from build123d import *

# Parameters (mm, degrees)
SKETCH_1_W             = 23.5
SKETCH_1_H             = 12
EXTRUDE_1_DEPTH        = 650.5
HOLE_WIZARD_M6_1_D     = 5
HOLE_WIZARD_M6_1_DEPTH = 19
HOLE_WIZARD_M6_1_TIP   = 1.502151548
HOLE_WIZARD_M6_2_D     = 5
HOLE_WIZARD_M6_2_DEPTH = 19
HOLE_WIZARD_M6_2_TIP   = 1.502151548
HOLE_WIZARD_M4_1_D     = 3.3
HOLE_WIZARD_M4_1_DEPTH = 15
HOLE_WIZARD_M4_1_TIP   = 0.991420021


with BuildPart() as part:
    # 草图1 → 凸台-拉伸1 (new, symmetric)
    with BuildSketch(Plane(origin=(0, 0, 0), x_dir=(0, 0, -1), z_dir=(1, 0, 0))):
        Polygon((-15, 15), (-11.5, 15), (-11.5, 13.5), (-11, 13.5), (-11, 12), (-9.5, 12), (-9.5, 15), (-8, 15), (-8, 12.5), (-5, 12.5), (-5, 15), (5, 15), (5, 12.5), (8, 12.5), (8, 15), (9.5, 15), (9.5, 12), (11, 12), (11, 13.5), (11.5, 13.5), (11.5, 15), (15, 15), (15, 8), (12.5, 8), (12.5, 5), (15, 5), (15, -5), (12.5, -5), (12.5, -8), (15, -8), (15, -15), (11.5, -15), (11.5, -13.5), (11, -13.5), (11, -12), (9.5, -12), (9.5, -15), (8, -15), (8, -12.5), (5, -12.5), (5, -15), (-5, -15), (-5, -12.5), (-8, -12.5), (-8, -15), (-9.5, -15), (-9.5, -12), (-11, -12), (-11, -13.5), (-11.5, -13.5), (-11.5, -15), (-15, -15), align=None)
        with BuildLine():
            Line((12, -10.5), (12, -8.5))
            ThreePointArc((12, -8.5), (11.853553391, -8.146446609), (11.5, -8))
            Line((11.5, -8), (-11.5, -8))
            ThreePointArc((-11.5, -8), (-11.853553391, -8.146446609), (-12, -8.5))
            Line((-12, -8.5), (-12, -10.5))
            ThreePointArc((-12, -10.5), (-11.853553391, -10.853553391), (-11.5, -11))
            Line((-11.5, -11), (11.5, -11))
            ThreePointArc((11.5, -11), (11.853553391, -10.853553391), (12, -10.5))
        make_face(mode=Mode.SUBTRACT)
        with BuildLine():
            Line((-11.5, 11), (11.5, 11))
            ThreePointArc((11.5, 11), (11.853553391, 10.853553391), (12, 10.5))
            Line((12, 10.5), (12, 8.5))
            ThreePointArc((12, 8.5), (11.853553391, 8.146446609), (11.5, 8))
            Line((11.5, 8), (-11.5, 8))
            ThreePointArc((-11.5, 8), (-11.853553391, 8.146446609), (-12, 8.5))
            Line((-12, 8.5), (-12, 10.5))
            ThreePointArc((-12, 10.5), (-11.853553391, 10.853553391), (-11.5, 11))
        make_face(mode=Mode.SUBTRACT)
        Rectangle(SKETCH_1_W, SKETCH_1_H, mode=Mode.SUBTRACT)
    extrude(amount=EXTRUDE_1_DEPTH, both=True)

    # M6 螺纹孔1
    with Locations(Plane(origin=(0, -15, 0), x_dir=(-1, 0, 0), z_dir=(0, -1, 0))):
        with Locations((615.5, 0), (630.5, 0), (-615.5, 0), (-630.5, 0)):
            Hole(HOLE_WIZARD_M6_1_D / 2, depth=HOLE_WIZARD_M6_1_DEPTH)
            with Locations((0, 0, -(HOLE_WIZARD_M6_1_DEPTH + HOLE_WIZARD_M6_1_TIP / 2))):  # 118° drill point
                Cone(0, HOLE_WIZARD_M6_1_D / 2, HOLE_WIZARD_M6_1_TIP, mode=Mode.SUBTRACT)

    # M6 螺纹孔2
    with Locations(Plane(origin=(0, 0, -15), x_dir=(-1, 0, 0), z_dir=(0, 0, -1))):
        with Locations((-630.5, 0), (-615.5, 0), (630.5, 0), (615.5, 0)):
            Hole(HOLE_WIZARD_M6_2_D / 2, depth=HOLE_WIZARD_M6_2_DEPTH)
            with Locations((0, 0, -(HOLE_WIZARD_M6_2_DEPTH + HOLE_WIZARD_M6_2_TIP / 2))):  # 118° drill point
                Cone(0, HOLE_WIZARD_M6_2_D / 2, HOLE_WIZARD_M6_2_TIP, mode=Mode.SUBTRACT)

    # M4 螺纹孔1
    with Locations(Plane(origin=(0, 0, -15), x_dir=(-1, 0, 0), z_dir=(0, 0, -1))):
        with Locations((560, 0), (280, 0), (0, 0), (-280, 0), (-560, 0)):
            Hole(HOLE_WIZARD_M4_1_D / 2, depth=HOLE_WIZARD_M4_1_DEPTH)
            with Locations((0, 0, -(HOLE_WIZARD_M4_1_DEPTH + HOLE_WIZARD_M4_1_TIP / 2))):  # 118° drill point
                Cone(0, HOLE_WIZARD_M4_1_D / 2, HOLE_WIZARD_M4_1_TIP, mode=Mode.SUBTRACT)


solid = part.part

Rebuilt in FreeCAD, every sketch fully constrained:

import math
import FreeCAD as App
import Part
import Sketcher

V = App.Vector
Q = App.Units.Quantity

doc = App.newDocument("Part")
body = doc.addObject("PartDesign::Body", "Body")

# Sketch on YZ plane
sketch1 = body.newObject("Sketcher::SketchObject", "Sketch")
sketch1.AttachmentSupport = (doc.getObject("YZ_Plane"), [""])
sketch1.MapMode = "FlatFace"
sketch1.addGeometry(Part.LineSegment(V(15, 11.5, 0), V(15, 15, 0)), False)
sketch1.addGeometry(Part.LineSegment(V(15, 15, 0), V(-15, 15, 0)), False)
sketch1.addGeometry(Part.LineSegment(V(-15, 15, 0), V(-15, 11.5, 0)), False)
sketch1.addGeometry(Part.LineSegment(V(-15, 11.5, 0), V(-13.5, 11.5, 0)), False)
sketch1.addGeometry(Part.LineSegment(V(-13.5, 11.5, 0), V(-13.5, 11, 0)), False)
sketch1.addGeometry(Part.LineSegment(V(-13.5, 11, 0), V(-12, 11, 0)), False)
sketch1.addGeometry(Part.LineSegment(V(-12, 11, 0), V(-12, 9.5, 0)), False)
sketch1.addGeometry(Part.LineSegment(V(-12, 9.5, 0), V(-15, 9.5, 0)), False)
sketch1.addGeometry(Part.LineSegment(V(-15, 9.5, 0), V(-15, 8, 0)), False)
sketch1.addGeometry(Part.LineSegment(V(-15, 8, 0), V(-12.5, 8, 0)), False)
sketch1.addGeometry(Part.LineSegment(V(-12.5, 8, 0), V(-12.5, 5, 0)), False)
sketch1.addGeometry(Part.LineSegment(V(-12.5, 5, 0), V(-15, 5, 0)), False)
sketch1.addGeometry(Part.LineSegment(V(-15, 5, 0), V(-15, -5, 0)), False)
sketch1.addGeometry(Part.LineSegment(V(-15, -5, 0), V(-12.5, -5, 0)), False)
sketch1.addGeometry(Part.LineSegment(V(-12.5, -5, 0), V(-12.5, -8, 0)), False)
sketch1.addGeometry(Part.LineSegment(V(-12.5, -8, 0), V(-15, -8, 0)), False)
sketch1.addGeometry(Part.LineSegment(V(-15, -8, 0), V(-15, -9.5, 0)), False)
sketch1.addGeometry(Part.LineSegment(V(-15, -9.5, 0), V(-12, -9.5, 0)), False)
sketch1.addGeometry(Part.LineSegment(V(-12, -9.5, 0), V(-12, -11, 0)), False)
sketch1.addGeometry(Part.LineSegment(V(-12, -11, 0), V(-13.5, -11, 0)), False)
sketch1.addGeometry(Part.LineSegment(V(-13.5, -11, 0), V(-13.5, -11.5, 0)), False)
sketch1.addGeometry(Part.LineSegment(V(-13.5, -11.5, 0), V(-15, -11.5, 0)), False)
sketch1.addGeometry(Part.LineSegment(V(-15, -11.5, 0), V(-15, -15, 0)), False)
sketch1.addGeometry(Part.LineSegment(V(-15, -15, 0), V(-8, -15, 0)), False)
sketch1.addGeometry(Part.LineSegment(V(-8, -15, 0), V(-8, -12.5, 0)), False)
sketch1.addGeometry(Part.LineSegment(V(-8, -12.5, 0), V(-5, -12.5, 0)), False)
sketch1.addGeometry(Part.LineSegment(V(-5, -12.5, 0), V(-5, -15, 0)), False)
sketch1.addGeometry(Part.LineSegment(V(-5, -15, 0), V(5, -15, 0)), False)
sketch1.addGeometry(Part.LineSegment(V(5, -15, 0), V(5, -12.5, 0)), False)
sketch1.addGeometry(Part.LineSegment(V(5, -12.5, 0), V(8, -12.5, 0)), False)
sketch1.addGeometry(Part.LineSegment(V(8, -12.5, 0), V(8, -15, 0)), False)
sketch1.addGeometry(Part.LineSegment(V(8, -15, 0), V(15, -15, 0)), False)
sketch1.addGeometry(Part.LineSegment(V(15, -15, 0), V(15, -11.5, 0)), False)
sketch1.addGeometry(Part.LineSegment(V(15, -11.5, 0), V(13.5, -11.5, 0)), False)
sketch1.addGeometry(Part.LineSegment(V(13.5, -11.5, 0), V(13.5, -11, 0)), False)
sketch1.addGeometry(Part.LineSegment(V(13.5, -11, 0), V(12, -11, 0)), False)
sketch1.addGeometry(Part.LineSegment(V(12, -11, 0), V(12, -9.5, 0)), False)
sketch1.addGeometry(Part.LineSegment(V(12, -9.5, 0), V(15, -9.5, 0)), False)
sketch1.addGeometry(Part.LineSegment(V(15, -9.5, 0), V(15, -8, 0)), False)
sketch1.addGeometry(Part.LineSegment(V(15, -8, 0), V(12.5, -8, 0)), False)
sketch1.addGeometry(Part.LineSegment(V(12.5, -8, 0), V(12.5, -5, 0)), False)
sketch1.addGeometry(Part.LineSegment(V(12.5, -5, 0), V(15, -5, 0)), False)
sketch1.addGeometry(Part.LineSegment(V(15, -5, 0), V(15, 5, 0)), False)
sketch1.addGeometry(Part.LineSegment(V(15, 5, 0), V(12.5, 5, 0)), False)
sketch1.addGeometry(Part.LineSegment(V(12.5, 5, 0), V(12.5, 8, 0)), False)
sketch1.addGeometry(Part.LineSegment(V(12.5, 8, 0), V(15, 8, 0)), False)
sketch1.addGeometry(Part.LineSegment(V(15, 8, 0), V(15, 9.5, 0)), False)
sketch1.addGeometry(Part.LineSegment(V(15, 9.5, 0), V(12, 9.5, 0)), False)
sketch1.addGeometry(Part.LineSegment(V(12, 9.5, 0), V(12, 11, 0)), False)
sketch1.addGeometry(Part.LineSegment(V(12, 11, 0), V(13.5, 11, 0)), False)
sketch1.addGeometry(Part.LineSegment(V(13.5, 11, 0), V(13.5, 11.5, 0)), False)
sketch1.addGeometry(Part.LineSegment(V(13.5, 11.5, 0), V(15, 11.5, 0)), False)
sketch1.addGeometry(Part.ArcOfCircle(Part.Circle(V(-10.5, -11.5, 0), V(0, 0, 1), 0.5), math.radians(180), math.radians(270)), False)
sketch1.addGeometry(Part.LineSegment(V(-11, -11.5, 0), V(-11, 11.5, 0)), False)
sketch1.addGeometry(Part.ArcOfCircle(Part.Circle(V(-10.5, 11.5, 0), V(0, 0, 1), 0.5), math.radians(90), math.radians(180)), False)
sketch1.addGeometry(Part.LineSegment(V(-10.5, 12, 0), V(-8.5, 12, 0)), False)
sketch1.addGeometry(Part.ArcOfCircle(Part.Circle(V(-8.5, 11.5, 0), V(0, 0, 1), 0.5), math.radians(0), math.radians(90)), False)
sketch1.addGeometry(Part.LineSegment(V(-8, 11.5, 0), V(-8, -11.5, 0)), False)
sketch1.addGeometry(Part.ArcOfCircle(Part.Circle(V(-8.5, -11.5, 0), V(0, 0, 1), 0.5), math.radians(-90), math.radians(0)), False)
sketch1.addGeometry(Part.LineSegment(V(-8.5, -12, 0), V(-10.5, -12, 0)), False)
sketch1.addGeometry(Part.LineSegment(V(-6, 11.75, 0), V(6, 11.75, 0)), False)
sketch1.addGeometry(Part.LineSegment(V(6, 11.75, 0), V(6, -11.75, 0)), False)
sketch1.addGeometry(Part.LineSegment(V(6, -11.75, 0), V(-6, -11.75, 0)), False)
sketch1.addGeometry(Part.LineSegment(V(-6, -11.75, 0), V(-6, 11.75, 0)), False)
sketch1.addGeometry(Part.LineSegment(V(11, 11.5, 0), V(11, -11.5, 0)), False)
sketch1.addGeometry(Part.ArcOfCircle(Part.Circle(V(10.5, -11.5, 0), V(0, 0, 1), 0.5), math.radians(-90), math.radians(0)), False)
sketch1.addGeometry(Part.LineSegment(V(10.5, -12, 0), V(8.5, -12, 0)), False)
sketch1.addGeometry(Part.ArcOfCircle(Part.Circle(V(8.5, -11.5, 0), V(0, 0, 1), 0.5), math.radians(180), math.radians(270)), False)
sketch1.addGeometry(Part.LineSegment(V(8, -11.5, 0), V(8, 11.5, 0)), False)
sketch1.addGeometry(Part.ArcOfCircle(Part.Circle(V(8.5, 11.5, 0), V(0, 0, 1), 0.5), math.radians(90), math.radians(180)), False)
sketch1.addGeometry(Part.LineSegment(V(8.5, 12, 0), V(10.5, 12, 0)), False)
sketch1.addGeometry(Part.ArcOfCircle(Part.Circle(V(10.5, 11.5, 0), V(0, 0, 1), 0.5), math.radians(0), math.radians(90)), False)
sketch1.addConstraint(Sketcher.Constraint("Coincident", 0, 2, 1, 1))
sketch1.addConstraint(Sketcher.Constraint("Coincident", 1, 2, 2, 1))
sketch1.addConstraint(Sketcher.Constraint("Coincident", 2, 2, 3, 1))
sketch1.addConstraint(Sketcher.Constraint("Coincident", 3, 2, 4, 1))
sketch1.addConstraint(Sketcher.Constraint("Coincident", 4, 2, 5, 1))
sketch1.addConstraint(Sketcher.Constraint("Coincident", 5, 2, 6, 1))
sketch1.addConstraint(Sketcher.Constraint("Coincident", 6, 2, 7, 1))
sketch1.addConstraint(Sketcher.Constraint("Coincident", 7, 2, 8, 1))
sketch1.addConstraint(Sketcher.Constraint("Coincident", 8, 2, 9, 1))
sketch1.addConstraint(Sketcher.Constraint("Coincident", 9, 2, 10, 1))
sketch1.addConstraint(Sketcher.Constraint("Coincident", 10, 2, 11, 1))
sketch1.addConstraint(Sketcher.Constraint("Coincident", 11, 2, 12, 1))
sketch1.addConstraint(Sketcher.Constraint("Coincident", 12, 2, 13, 1))
sketch1.addConstraint(Sketcher.Constraint("Coincident", 13, 2, 14, 1))
sketch1.addConstraint(Sketcher.Constraint("Coincident", 14, 2, 15, 1))
sketch1.addConstraint(Sketcher.Constraint("Coincident", 15, 2, 16, 1))
sketch1.addConstraint(Sketcher.Constraint("Coincident", 16, 2, 17, 1))
sketch1.addConstraint(Sketcher.Constraint("Coincident", 17, 2, 18, 1))
sketch1.addConstraint(Sketcher.Constraint("Coincident", 18, 2, 19, 1))
sketch1.addConstraint(Sketcher.Constraint("Coincident", 19, 2, 20, 1))
sketch1.addConstraint(Sketcher.Constraint("Coincident", 20, 2, 21, 1))
sketch1.addConstraint(Sketcher.Constraint("Coincident", 21, 2, 22, 1))
sketch1.addConstraint(Sketcher.Constraint("Coincident", 22, 2, 23, 1))
sketch1.addConstraint(Sketcher.Constraint("Coincident", 23, 2, 24, 1))
sketch1.addConstraint(Sketcher.Constraint("Coincident", 24, 2, 25, 1))
sketch1.addConstraint(Sketcher.Constraint("Coincident", 25, 2, 26, 1))
sketch1.addConstraint(Sketcher.Constraint("Coincident", 26, 2, 27, 1))
sketch1.addConstraint(Sketcher.Constraint("Coincident", 27, 2, 28, 1))
sketch1.addConstraint(Sketcher.Constraint("Coincident", 28, 2, 29, 1))
sketch1.addConstraint(Sketcher.Constraint("Coincident", 29, 2, 30, 1))
sketch1.addConstraint(Sketcher.Constraint("Coincident", 30, 2, 31, 1))
sketch1.addConstraint(Sketcher.Constraint("Coincident", 31, 2, 32, 1))
sketch1.addConstraint(Sketcher.Constraint("Coincident", 32, 2, 33, 1))
sketch1.addConstraint(Sketcher.Constraint("Coincident", 33, 2, 34, 1))
sketch1.addConstraint(Sketcher.Constraint("Coincident", 34, 2, 35, 1))
sketch1.addConstraint(Sketcher.Constraint("Coincident", 35, 2, 36, 1))
sketch1.addConstraint(Sketcher.Constraint("Coincident", 36, 2, 37, 1))
sketch1.addConstraint(Sketcher.Constraint("Coincident", 37, 2, 38, 1))
sketch1.addConstraint(Sketcher.Constraint("Coincident", 38, 2, 39, 1))
sketch1.addConstraint(Sketcher.Constraint("Coincident", 39, 2, 40, 1))
sketch1.addConstraint(Sketcher.Constraint("Coincident", 40, 2, 41, 1))
sketch1.addConstraint(Sketcher.Constraint("Coincident", 41, 2, 42, 1))
sketch1.addConstraint(Sketcher.Constraint("Coincident", 42, 2, 43, 1))
sketch1.addConstraint(Sketcher.Constraint("Coincident", 43, 2, 44, 1))
sketch1.addConstraint(Sketcher.Constraint("Coincident", 44, 2, 45, 1))
sketch1.addConstraint(Sketcher.Constraint("Coincident", 45, 2, 46, 1))
sketch1.addConstraint(Sketcher.Constraint("Coincident", 46, 2, 47, 1))
sketch1.addConstraint(Sketcher.Constraint("Coincident", 47, 2, 48, 1))
sketch1.addConstraint(Sketcher.Constraint("Coincident", 48, 2, 49, 1))
sketch1.addConstraint(Sketcher.Constraint("Coincident", 49, 2, 50, 1))
sketch1.addConstraint(Sketcher.Constraint("Coincident", 50, 2, 51, 1))
sketch1.addConstraint(Sketcher.Constraint("Coincident", 51, 2, 0, 1))
sketch1.addConstraint(Sketcher.Constraint("Tangent", 52, 1, 53, 1))
sketch1.addConstraint(Sketcher.Constraint("Tangent", 53, 2, 54, 2))
sketch1.addConstraint(Sketcher.Constraint("Tangent", 54, 1, 55, 1))
sketch1.addConstraint(Sketcher.Constraint("Tangent", 55, 2, 56, 2))
sketch1.addConstraint(Sketcher.Constraint("Tangent", 56, 1, 57, 1))
sketch1.addConstraint(Sketcher.Constraint("Tangent", 57, 2, 58, 2))
sketch1.addConstraint(Sketcher.Constraint("Tangent", 58, 1, 59, 1))
sketch1.addConstraint(Sketcher.Constraint("Tangent", 59, 2, 52, 2))
sketch1.addConstraint(Sketcher.Constraint("Coincident", 60, 2, 61, 1))
sketch1.addConstraint(Sketcher.Constraint("Coincident", 61, 2, 62, 1))
sketch1.addConstraint(Sketcher.Constraint("Coincident", 62, 2, 63, 1))
sketch1.addConstraint(Sketcher.Constraint("Coincident", 63, 2, 60, 1))
sketch1.addConstraint(Sketcher.Constraint("Tangent", 64, 2, 65, 2))
sketch1.addConstraint(Sketcher.Constraint("Tangent", 65, 1, 66, 1))
sketch1.addConstraint(Sketcher.Constraint("Tangent", 66, 2, 67, 2))
sketch1.addConstraint(Sketcher.Constraint("Tangent", 67, 1, 68, 1))
sketch1.addConstraint(Sketcher.Constraint("Tangent", 68, 2, 69, 2))
sketch1.addConstraint(Sketcher.Constraint("Tangent", 69, 1, 70, 1))
sketch1.addConstraint(Sketcher.Constraint("Tangent", 70, 2, 71, 2))
sketch1.addConstraint(Sketcher.Constraint("Tangent", 71, 1, 64, 1))
sketch1.addConstraint(Sketcher.Constraint("Vertical", 0))
sketch1.addConstraint(Sketcher.Constraint("Horizontal", 1))
sketch1.addConstraint(Sketcher.Constraint("Vertical", 2))
sketch1.addConstraint(Sketcher.Constraint("Horizontal", 3))
sketch1.addConstraint(Sketcher.Constraint("Vertical", 4))
sketch1.addConstraint(Sketcher.Constraint("Horizontal", 5))
sketch1.addConstraint(Sketcher.Constraint("Vertical", 6))
sketch1.addConstraint(Sketcher.Constraint("Horizontal", 7))
sketch1.addConstraint(Sketcher.Constraint("Vertical", 8))
sketch1.addConstraint(Sketcher.Constraint("Horizontal", 9))
sketch1.addConstraint(Sketcher.Constraint("Vertical", 10))
sketch1.addConstraint(Sketcher.Constraint("Horizontal", 11))
sketch1.addConstraint(Sketcher.Constraint("Vertical", 12))
sketch1.addConstraint(Sketcher.Constraint("Horizontal", 13))
sketch1.addConstraint(Sketcher.Constraint("Vertical", 14))
sketch1.addConstraint(Sketcher.Constraint("Horizontal", 15))
sketch1.addConstraint(Sketcher.Constraint("Vertical", 16))
sketch1.addConstraint(Sketcher.Constraint("Horizontal", 17))
sketch1.addConstraint(Sketcher.Constraint("Vertical", 18))
sketch1.addConstraint(Sketcher.Constraint("Horizontal", 19))
sketch1.addConstraint(Sketcher.Constraint("Vertical", 20))
sketch1.addConstraint(Sketcher.Constraint("Horizontal", 21))
sketch1.addConstraint(Sketcher.Constraint("Vertical", 22))
sketch1.addConstraint(Sketcher.Constraint("Horizontal", 23))
sketch1.addConstraint(Sketcher.Constraint("Vertical", 24))
sketch1.addConstraint(Sketcher.Constraint("Horizontal", 25))
sketch1.addConstraint(Sketcher.Constraint("Vertical", 26))
sketch1.addConstraint(Sketcher.Constraint("Horizontal", 27))
sketch1.addConstraint(Sketcher.Constraint("Vertical", 28))
sketch1.addConstraint(Sketcher.Constraint("Horizontal", 29))
sketch1.addConstraint(Sketcher.Constraint("Vertical", 30))
sketch1.addConstraint(Sketcher.Constraint("Horizontal", 31))
sketch1.addConstraint(Sketcher.Constraint("Vertical", 32))
sketch1.addConstraint(Sketcher.Constraint("Horizontal", 33))
sketch1.addConstraint(Sketcher.Constraint("Vertical", 34))
sketch1.addConstraint(Sketcher.Constraint("Horizontal", 35))
sketch1.addConstraint(Sketcher.Constraint("Vertical", 36))
sketch1.addConstraint(Sketcher.Constraint("Horizontal", 37))
sketch1.addConstraint(Sketcher.Constraint("Vertical", 38))
sketch1.addConstraint(Sketcher.Constraint("Horizontal", 39))
sketch1.addConstraint(Sketcher.Constraint("Vertical", 40))
sketch1.addConstraint(Sketcher.Constraint("Horizontal", 41))
sketch1.addConstraint(Sketcher.Constraint("Vertical", 42))
sketch1.addConstraint(Sketcher.Constraint("Horizontal", 43))
sketch1.addConstraint(Sketcher.Constraint("Vertical", 44))
sketch1.addConstraint(Sketcher.Constraint("Horizontal", 45))
sketch1.addConstraint(Sketcher.Constraint("Vertical", 46))
sketch1.addConstraint(Sketcher.Constraint("Horizontal", 47))
sketch1.addConstraint(Sketcher.Constraint("Vertical", 48))
sketch1.addConstraint(Sketcher.Constraint("Horizontal", 49))
sketch1.addConstraint(Sketcher.Constraint("Vertical", 50))
sketch1.addConstraint(Sketcher.Constraint("Horizontal", 51))
sketch1.addConstraint(Sketcher.Constraint("Vertical", 53))
sketch1.addConstraint(Sketcher.Constraint("Horizontal", 55))
sketch1.addConstraint(Sketcher.Constraint("Vertical", 57))
sketch1.addConstraint(Sketcher.Constraint("Horizontal", 59))
sketch1.addConstraint(Sketcher.Constraint("Horizontal", 60))
sketch1.addConstraint(Sketcher.Constraint("Vertical", 61))
sketch1.addConstraint(Sketcher.Constraint("Horizontal", 62))
sketch1.addConstraint(Sketcher.Constraint("Vertical", 63))
sketch1.addConstraint(Sketcher.Constraint("Vertical", 64))
sketch1.addConstraint(Sketcher.Constraint("Horizontal", 66))
sketch1.addConstraint(Sketcher.Constraint("Vertical", 68))
sketch1.addConstraint(Sketcher.Constraint("Horizontal", 70))
sketch1.addConstraint(Sketcher.Constraint("Equal", 52, 54))
sketch1.addConstraint(Sketcher.Constraint("Equal", 54, 56))
sketch1.addConstraint(Sketcher.Constraint("Equal", 56, 58))
sketch1.addConstraint(Sketcher.Constraint("Equal", 58, 65))
sketch1.addConstraint(Sketcher.Constraint("Equal", 65, 67))
sketch1.addConstraint(Sketcher.Constraint("Equal", 67, 69))
sketch1.addConstraint(Sketcher.Constraint("Equal", 69, 71))
sketch1.addConstraint(Sketcher.Constraint("Symmetric", 54, 3, 65, 3, -1, 1))
sketch1.addConstraint(Sketcher.Constraint("Symmetric", 58, 3, 69, 3, -1, 1))
sketch1.addConstraint(Sketcher.Constraint("Symmetric", 0, 2, 22, 2, -1, 1))
sketch1.addConstraint(Sketcher.Constraint("Symmetric", 1, 2, 31, 2, -1, 1))
sketch1.addConstraint(Sketcher.Constraint("Symmetric", 3, 2, 33, 2, -1, 1))
sketch1.addConstraint(Sketcher.Constraint("Symmetric", 5, 2, 35, 2, -1, 1))
sketch1.addConstraint(Sketcher.Constraint("Symmetric", 7, 2, 37, 2, -1, 1))
sketch1.addConstraint(Sketcher.Constraint("Symmetric", 9, 2, 39, 2, -1, 1))
sketch1.addConstraint(Sketcher.Constraint("Symmetric", 11, 2, 41, 2, -1, 1))
sketch1.addConstraint(Sketcher.Constraint("Symmetric", 13, 2, 43, 2, -1, 1))
sketch1.addConstraint(Sketcher.Constraint("Symmetric", 15, 2, 45, 2, -1, 1))
sketch1.addConstraint(Sketcher.Constraint("Symmetric", 17, 2, 47, 2, -1, 1))
sketch1.addConstraint(Sketcher.Constraint("Symmetric", 19, 2, 49, 2, -1, 1))
sketch1.addConstraint(Sketcher.Constraint("Symmetric", 60, 2, 62, 2, -1, 1))
sketch1.addConstraint(Sketcher.Constraint("Symmetric", 25, 2, 28, 2, -2))
sketch1.addConstraint(Sketcher.Constraint("Symmetric", 21, 2, 32, 2, -2))
sketch1.addConstraint(Sketcher.Constraint("Symmetric", 19, 2, 34, 2, -2))
sketch1.addConstraint(Sketcher.Constraint("Symmetric", 17, 2, 36, 2, -2))
sketch1.addConstraint(Sketcher.Constraint("Symmetric", 15, 2, 38, 2, -2))
sketch1.addConstraint(Sketcher.Constraint("Symmetric", 13, 2, 40, 2, -2))
sketch1.addConstraint(Sketcher.Constraint("Horizontal", 58, 3, 65, 3))
sketch1.addConstraint(Sketcher.Constraint("Horizontal", 71, 3, 2, 2))
sketch1.addConstraint(Sketcher.Constraint("Horizontal", 23, 2, 26, 2))
sketch1.addConstraint(Sketcher.Constraint("Horizontal", 3, 2, 50, 2))
sketch1.addConstraint(Sketcher.Constraint("Vertical", 2, 2, 7, 2))
sketch1.addConstraint(Sketcher.Constraint("Vertical", 8, 2, 11, 2))
sketch1.addConstraint(Sketcher.Constraint("Vertical", 24, 2, 56, 1))
sketch1.addConstraint(Sketcher.Constraint("Vertical", 30, 2, 67, 1))
sketch1.addConstraint(Sketcher.Constraint("Equal", 3, 5))
sketch1.addConstraint(Sketcher.Constraint("Equal", 17, 25))
sketch1.addConstraint(Sketcher.Constraint("Equal", 51, 6))
sketch1.addConstraint(Sketcher.Constraint("Equal", 6, 8))
sketch1.addConstraint(Sketcher.Constraint("Equal", 47, 10))
sketch1.addConstraint(Sketcher.Constraint("Equal", 27, 12))
sketch1.addConstraint(Sketcher.Constraint("Equal", 45, 24))
sketch1.addConstraint(Sketcher.Constraint("Radius", 52, Q("0.5 mm")))
sketch1.addConstraint(Sketcher.Constraint("DistanceX", 1, 2, 1, 1, Q("30 mm")))
sketch1.addConstraint(Sketcher.Constraint("DistanceX", 7, 2, 7, 1, Q("3 mm")))
sketch1.addConstraint(Sketcher.Constraint("DistanceX", 23, 1, 23, 2, Q("7 mm")))
sketch1.addConstraint(Sketcher.Constraint("DistanceX", 55, 1, 55, 2, Q("2 mm")))
sketch1.addConstraint(Sketcher.Constraint("DistanceX", 60, 1, 60, 2, Q("12 mm")))
sketch1.addConstraint(Sketcher.Constraint("DistanceY", 53, 1, 53, 2, Q("23 mm")))
sketch1.addConstraint(Sketcher.Constraint("DistanceX", 9, 1, 9, 2, Q("2.5 mm")))
sketch1.addConstraint(Sketcher.Constraint("DistanceY", 0, 1, 0, 2, Q("3.5 mm")))
sketch1.addConstraint(Sketcher.Constraint("DistanceY", 61, 2, 61, 1, Q("23.5 mm")))
pad1 = body.newObject("PartDesign::Pad", "Pad")
pad1.Profile = sketch1
pad1.Length = 1301
pad1.Midplane = True

# Sketch on XZ plane
sketch2 = body.newObject("Sketcher::SketchObject", "Sketch001")
sketch2.AttachmentSupport = (doc.getObject("XZ_Plane"), [""])
sketch2.MapMode = "FlatFace"
sketch2.AttachmentOffset = App.Placement(V(0, 0, 15), App.Rotation())
sketch2.addGeometry(Part.Circle(V(-615.5, 0, 0), V(0, 0, 1), 2.5), False)
sketch2.addGeometry(Part.Circle(V(-630.5, 0, 0), V(0, 0, 1), 2.5), False)
sketch2.addGeometry(Part.Circle(V(615.5, 0, 0), V(0, 0, 1), 2.5), False)
sketch2.addGeometry(Part.Circle(V(630.5, 0, 0), V(0, 0, 1), 2.5), False)
sketch2.addConstraint(Sketcher.Constraint("Equal", 0, 1))
sketch2.addConstraint(Sketcher.Constraint("Equal", 1, 2))
sketch2.addConstraint(Sketcher.Constraint("Equal", 2, 3))
sketch2.addConstraint(Sketcher.Constraint("Symmetric", 0, 3, 2, 3, -1, 1))
sketch2.addConstraint(Sketcher.Constraint("Symmetric", 1, 3, 3, 3, -1, 1))
sketch2.addConstraint(Sketcher.Constraint("PointOnObject", 0, 3, -1))
sketch2.addConstraint(Sketcher.Constraint("PointOnObject", 1, 3, -1))
sketch2.addConstraint(Sketcher.Constraint("Diameter", 0, Q("5 mm")))
sketch2.addConstraint(Sketcher.Constraint("DistanceX", 1, 3, 0, 3, Q("15 mm")))
sketch2.addConstraint(Sketcher.Constraint("DistanceX", 0, 3, 2, 3, Q("1231 mm")))
doc.recompute()
hole = body.newObject("PartDesign::Hole", "Hole")
hole.Profile = sketch2
hole.ThreadType = "None"
hole.Diameter = 5
hole.DepthType = "Dimension"
hole.Depth = 19
hole.DrillPoint = "Angled"
hole.DrillPointAngle = 118

# Sketch on XY plane
sketch3 = body.newObject("Sketcher::SketchObject", "Sketch002")
sketch3.AttachmentSupport = (doc.getObject("XY_Plane"), [""])
sketch3.MapMode = "FlatFace"
sketch3.AttachmentOffset = App.Placement(V(0, 0, -15), App.Rotation())
sketch3.addGeometry(Part.Circle(V(630.5, 0, 0), V(0, 0, 1), 2.5), False)
sketch3.addGeometry(Part.Circle(V(615.5, 0, 0), V(0, 0, 1), 2.5), False)
sketch3.addGeometry(Part.Circle(V(-630.5, 0, 0), V(0, 0, 1), 2.5), False)
sketch3.addGeometry(Part.Circle(V(-615.5, 0, 0), V(0, 0, 1), 2.5), False)
sketch3.addConstraint(Sketcher.Constraint("Equal", 0, 1))
sketch3.addConstraint(Sketcher.Constraint("Equal", 1, 2))
sketch3.addConstraint(Sketcher.Constraint("Equal", 2, 3))
sketch3.addConstraint(Sketcher.Constraint("Symmetric", 0, 3, 2, 3, -1, 1))
sketch3.addConstraint(Sketcher.Constraint("Symmetric", 1, 3, 3, 3, -1, 1))
sketch3.addConstraint(Sketcher.Constraint("PointOnObject", 0, 3, -1))
sketch3.addConstraint(Sketcher.Constraint("PointOnObject", 1, 3, -1))
sketch3.addConstraint(Sketcher.Constraint("Diameter", 0, Q("5 mm")))
sketch3.addConstraint(Sketcher.Constraint("DistanceX", 1, 3, 0, 3, Q("15 mm")))
sketch3.addConstraint(Sketcher.Constraint("DistanceX", 2, 3, 1, 3, Q("1246 mm")))
doc.recompute()
hole2 = body.newObject("PartDesign::Hole", "Hole001")
hole2.Profile = sketch3
hole2.ThreadType = "None"
hole2.Diameter = 5
hole2.DepthType = "Dimension"
hole2.Depth = 19
hole2.DrillPoint = "Angled"
hole2.DrillPointAngle = 118
hole2.Reversed = True

# Sketch on XY plane
sketch4 = body.newObject("Sketcher::SketchObject", "Sketch003")
sketch4.AttachmentSupport = (doc.getObject("XY_Plane"), [""])
sketch4.MapMode = "FlatFace"
sketch4.AttachmentOffset = App.Placement(V(0, 0, -15), App.Rotation())
sketch4.addGeometry(Part.Circle(V(-560, 0, 0), V(0, 0, 1), 1.65), False)
sketch4.addGeometry(Part.Circle(V(-280, 0, 0), V(0, 0, 1), 1.65), False)
sketch4.addGeometry(Part.Circle(V(0, 0, 0), V(0, 0, 1), 1.65), False)
sketch4.addGeometry(Part.Circle(V(280, 0, 0), V(0, 0, 1), 1.65), False)
sketch4.addGeometry(Part.Circle(V(560, 0, 0), V(0, 0, 1), 1.65), False)
sketch4.addConstraint(Sketcher.Constraint("Coincident", 2, 3, -1, 1))
sketch4.addConstraint(Sketcher.Constraint("Equal", 0, 1))
sketch4.addConstraint(Sketcher.Constraint("Equal", 1, 2))
sketch4.addConstraint(Sketcher.Constraint("Equal", 2, 3))
sketch4.addConstraint(Sketcher.Constraint("Equal", 3, 4))
sketch4.addConstraint(Sketcher.Constraint("Symmetric", 1, 3, 3, 3, -1, 1))
sketch4.addConstraint(Sketcher.Constraint("Symmetric", 0, 3, 4, 3, -1, 1))
sketch4.addConstraint(Sketcher.Constraint("PointOnObject", 0, 3, -1))
sketch4.addConstraint(Sketcher.Constraint("PointOnObject", 1, 3, -1))
sketch4.addConstraint(Sketcher.Constraint("Diameter", 0, Q("3.3 mm")))
sketch4.addConstraint(Sketcher.Constraint("DistanceX", 0, 3, -1, 1, Q("560 mm")))
sketch4.addConstraint(Sketcher.Constraint("DistanceX", 1, 3, -1, 1, Q("280 mm")))
doc.recompute()
hole3 = body.newObject("PartDesign::Hole", "Hole002")
hole3.Profile = sketch4
hole3.ThreadType = "None"
hole3.Diameter = 3.3
hole3.DepthType = "Dimension"
hole3.Depth = 15
hole3.DrillPoint = "Angled"
hole3.DrillPointAngle = 118
hole3.Reversed = True

doc.recompute()
